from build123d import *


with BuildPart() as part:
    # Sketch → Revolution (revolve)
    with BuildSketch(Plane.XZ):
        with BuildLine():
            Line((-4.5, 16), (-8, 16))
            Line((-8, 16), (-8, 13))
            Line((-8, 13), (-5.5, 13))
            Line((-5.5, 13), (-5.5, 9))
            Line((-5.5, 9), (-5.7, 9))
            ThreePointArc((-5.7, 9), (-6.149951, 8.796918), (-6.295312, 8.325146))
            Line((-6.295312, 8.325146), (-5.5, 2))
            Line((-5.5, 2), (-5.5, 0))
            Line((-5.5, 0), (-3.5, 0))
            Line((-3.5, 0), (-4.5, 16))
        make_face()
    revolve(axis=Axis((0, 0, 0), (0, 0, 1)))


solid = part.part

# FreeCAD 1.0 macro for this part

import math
import FreeCAD as App
import Part
import Sketcher
from FreeCAD import Vector

doc = App.newDocument("Part")
body = doc.addObject("PartDesign::Body", "Body")

sketch1 = body.newObject("Sketcher::SketchObject", "Sketch")
sketch1.AttachmentSupport = (doc.getObject("XZ_Plane"), [""])
sketch1.MapMode = "FlatFace"
sketch1.addGeometry([
    Part.LineSegment(Vector(-4.5, 16, 0), Vector(-8, 16, 0)),
    Part.LineSegment(Vector(-8, 16, 0), Vector(-8, 13, 0)),
    Part.LineSegment(Vector(-8, 13, 0), Vector(-5.5, 13, 0)),
    Part.LineSegment(Vector(-5.5, 13, 0), Vector(-5.5, 9, 0)),
    Part.LineSegment(Vector(-5.5, 9, 0), Vector(-5.7, 9, 0)),
    Part.ArcOfCircle(Part.Circle(Vector(-5.7, 8.4, 0), Vector(0, 0, 1), 0.6), math.radians(90.000008), math.radians(187.166736)),
    Part.LineSegment(Vector(-6.295312, 8.325146, 0), Vector(-5.5, 2, 0)),
    Part.LineSegment(Vector(-5.5, 2, 0), Vector(-5.5, 0, 0)),
    Part.LineSegment(Vector(-5.5, 0, 0), Vector(-3.5, 0, 0)),
    Part.LineSegment(Vector(-3.5, 0, 0), Vector(-4.5, 16, 0)),
], False)
sketch1.addConstraint([
    Sketcher.Constraint("Coincident", 0, 2, 1, 1),
    Sketcher.Constraint("Coincident", 1, 2, 2, 1),
    Sketcher.Constraint("Coincident", 2, 2, 3, 1),
    Sketcher.Constraint("Coincident", 3, 2, 4, 1),
    Sketcher.Constraint("Tangent", 4, 2, 5, 1),
    Sketcher.Constraint("Tangent", 5, 2, 6, 1),
    Sketcher.Constraint("Coincident", 6, 2, 7, 1),
    Sketcher.Constraint("Coincident", 7, 2, 8, 1),
    Sketcher.Constraint("Coincident", 8, 2, 9, 1),
    Sketcher.Constraint("Coincident", 9, 2, 0, 1),
    Sketcher.Constraint("Horizontal", 0),
    Sketcher.Constraint("Vertical", 1),
    Sketcher.Constraint("Horizontal", 2),
    Sketcher.Constraint("Vertical", 3),
    Sketcher.Constraint("Horizontal", 4),
    Sketcher.Constraint("Vertical", 7),
    Sketcher.Constraint("Horizontal", 8),
    Sketcher.Constraint("PointOnObject", 7, 2, -1),
    Sketcher.Constraint("Vertical", 3, 2, 6, 2),
    Sketcher.Constraint("Equal", 8, 7),
    Sketcher.Constraint("Radius", 5, 0.6),
    Sketcher.Constraint("DistanceX", 8, 1, 8, 2, 2.0),
    Sketcher.Constraint("DistanceY", 1, 2, 1, 1, 3.0),
    Sketcher.Constraint("DistanceY", 3, 2, 3, 1, 4.0),
    Sketcher.Constraint("DistanceX", 0, 2, 0, 1, 3.5),
    Sketcher.Constraint("DistanceX", 2, 1, 2, 2, 2.5),
    Sketcher.Constraint("DistanceX", 4, 2, 4, 1, 0.2),
    Sketcher.Constraint("DistanceX", 0, 2, -1, 1, 8.0),
    Sketcher.Constraint("DistanceY", -1, 1, 0, 2, 16.0),
])
revolution = body.newObject("PartDesign::Revolution", "Revolution")
revolution.Profile = sketch1
revolution.ReferenceAxis = (sketch1, ["V_Axis"])
revolution.Angle = 360

doc.recompute()
